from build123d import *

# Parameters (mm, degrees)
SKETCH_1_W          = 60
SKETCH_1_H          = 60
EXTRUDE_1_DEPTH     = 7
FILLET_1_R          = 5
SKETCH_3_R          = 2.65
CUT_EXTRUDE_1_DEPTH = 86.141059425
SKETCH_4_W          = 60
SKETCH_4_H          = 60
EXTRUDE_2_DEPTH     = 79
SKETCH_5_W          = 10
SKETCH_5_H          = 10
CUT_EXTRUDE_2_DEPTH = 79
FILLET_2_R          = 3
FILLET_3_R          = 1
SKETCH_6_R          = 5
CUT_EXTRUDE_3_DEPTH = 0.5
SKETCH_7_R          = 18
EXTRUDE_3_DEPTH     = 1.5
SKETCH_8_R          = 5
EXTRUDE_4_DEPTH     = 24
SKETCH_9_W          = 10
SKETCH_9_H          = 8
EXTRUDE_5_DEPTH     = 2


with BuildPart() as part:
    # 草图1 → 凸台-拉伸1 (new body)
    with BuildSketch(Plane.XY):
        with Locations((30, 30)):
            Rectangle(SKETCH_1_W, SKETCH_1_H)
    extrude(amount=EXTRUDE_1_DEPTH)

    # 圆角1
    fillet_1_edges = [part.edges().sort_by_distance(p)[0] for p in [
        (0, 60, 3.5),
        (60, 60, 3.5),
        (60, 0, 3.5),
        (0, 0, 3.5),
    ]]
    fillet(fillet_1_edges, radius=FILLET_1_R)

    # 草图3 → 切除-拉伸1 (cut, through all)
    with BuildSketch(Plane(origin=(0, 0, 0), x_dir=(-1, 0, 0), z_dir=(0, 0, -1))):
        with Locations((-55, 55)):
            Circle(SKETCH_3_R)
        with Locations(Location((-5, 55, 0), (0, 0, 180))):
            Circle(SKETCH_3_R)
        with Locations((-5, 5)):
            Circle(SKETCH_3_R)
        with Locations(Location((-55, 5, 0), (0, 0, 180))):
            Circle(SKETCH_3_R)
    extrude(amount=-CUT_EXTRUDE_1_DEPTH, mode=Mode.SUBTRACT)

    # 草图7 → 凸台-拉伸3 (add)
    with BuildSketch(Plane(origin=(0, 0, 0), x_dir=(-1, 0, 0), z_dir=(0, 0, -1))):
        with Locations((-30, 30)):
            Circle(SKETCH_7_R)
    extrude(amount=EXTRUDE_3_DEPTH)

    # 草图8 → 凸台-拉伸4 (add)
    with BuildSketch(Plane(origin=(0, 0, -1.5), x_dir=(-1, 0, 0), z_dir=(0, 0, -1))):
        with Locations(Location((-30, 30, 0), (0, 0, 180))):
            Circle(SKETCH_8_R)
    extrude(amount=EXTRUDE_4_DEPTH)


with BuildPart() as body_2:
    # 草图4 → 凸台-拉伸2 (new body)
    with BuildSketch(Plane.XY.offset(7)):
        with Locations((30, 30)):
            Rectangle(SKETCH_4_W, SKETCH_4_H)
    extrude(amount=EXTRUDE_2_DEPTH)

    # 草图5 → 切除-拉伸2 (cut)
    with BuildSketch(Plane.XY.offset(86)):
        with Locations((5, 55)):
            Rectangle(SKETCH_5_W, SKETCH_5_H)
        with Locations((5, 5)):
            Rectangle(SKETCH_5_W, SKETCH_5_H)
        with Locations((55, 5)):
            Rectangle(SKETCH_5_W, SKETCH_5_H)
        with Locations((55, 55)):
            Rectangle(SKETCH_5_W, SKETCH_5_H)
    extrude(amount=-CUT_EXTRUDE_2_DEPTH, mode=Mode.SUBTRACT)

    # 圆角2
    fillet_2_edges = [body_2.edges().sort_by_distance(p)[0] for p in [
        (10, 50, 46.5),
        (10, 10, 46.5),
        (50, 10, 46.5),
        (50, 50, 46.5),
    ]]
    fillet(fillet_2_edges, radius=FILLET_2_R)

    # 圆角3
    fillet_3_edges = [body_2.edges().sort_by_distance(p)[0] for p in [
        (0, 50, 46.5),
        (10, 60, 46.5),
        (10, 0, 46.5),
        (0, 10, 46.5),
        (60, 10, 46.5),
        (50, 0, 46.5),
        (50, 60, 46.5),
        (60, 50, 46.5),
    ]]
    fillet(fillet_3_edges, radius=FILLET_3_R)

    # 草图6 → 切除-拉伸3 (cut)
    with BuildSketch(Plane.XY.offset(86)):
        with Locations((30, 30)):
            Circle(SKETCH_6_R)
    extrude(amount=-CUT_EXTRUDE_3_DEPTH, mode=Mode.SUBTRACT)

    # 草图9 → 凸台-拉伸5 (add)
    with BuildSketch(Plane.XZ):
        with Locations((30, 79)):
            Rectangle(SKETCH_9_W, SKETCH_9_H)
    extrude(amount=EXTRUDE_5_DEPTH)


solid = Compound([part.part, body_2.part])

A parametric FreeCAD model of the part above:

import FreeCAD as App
import Part
import Sketcher

V = App.Vector
Q = App.Units.Quantity


def edges_at(feature, points):
    """Names of the edges that pass closest to the given points."""
    edges = feature.Shape.Edges
    near = lambda p: min(range(len(edges)), key=lambda i: edges[i].distToShape(Part.Vertex(*p))[0])
    return sorted({f"Edge{near(p) + 1}" for p in points})

doc = App.newDocument("Part")
body = doc.addObject("PartDesign::Body", "Body")

# Sketch on XY plane
sketch1 = body.newObject("Sketcher::SketchObject", "Sketch")
sketch1.AttachmentSupport = (doc.getObject("XY_Plane"), [""])
sketch1.MapMode = "FlatFace"
sketch1.addGeometry([
    Part.LineSegment(V(0, 60, 0), V(0, 0, 0)),
    Part.LineSegment(V(0, 0, 0), V(60, 0, 0)),
    Part.LineSegment(V(60, 0, 0), V(60, 60, 0)),
    Part.LineSegment(V(60, 60, 0), V(0, 60, 0)),
], False)
sketch1.addConstraint([
    Sketcher.Constraint("Coincident", 0, 2, 1, 1),
    Sketcher.Constraint("Coincident", 1, 2, 2, 1),
    Sketcher.Constraint("Coincident", 2, 2, 3, 1),
    Sketcher.Constraint("Coincident", 3, 2, 0, 1),
    Sketcher.Constraint("Vertical", 0),
    Sketcher.Constraint("Horizontal", 1),
    Sketcher.Constraint("Vertical", 2),
    Sketcher.Constraint("Horizontal", 3),
    Sketcher.Constraint("Coincident", 0, 2, -1, 1),
    Sketcher.Constraint("Equal", 3, 0),
    Sketcher.Constraint("DistanceX", 1, 1, 1, 2, Q("60 mm")),
])
pad1 = body.newObject("PartDesign::Pad", "Pad")
pad1.Profile = sketch1
pad1.Length = 7
doc.recompute()

fillet = body.newObject("PartDesign::Fillet", "Fillet")
fillet.Base = (pad1, edges_at(pad1, [
    (0, 60, 3.5),
    (60, 60, 3.5),
    (60, 0, 3.5),
    (0, 0, 3.5),
]))
fillet.Radius = 5

# Sketch on XY plane
sketch2 = body.newObject("Sketcher::SketchObject", "Sketch001")
sketch2.AttachmentSupport = (doc.getObject("XY_Plane"), [""])
sketch2.MapMode = "FlatFace"
sketch2.addGeometry([
    Part.Circle(V(55, 55, 0), V(0, 0, 1), 2.65),
    Part.Circle(V(5, 55, 0), V(0, 0, 1), 2.65),
    Part.Circle(V(5, 5, 0), V(0, 0, 1), 2.65),
    Part.Circle(V(55, 5, 0), V(0, 0, 1), 2.65),
], False)
sketch2.addConstraint([
    Sketcher.Constraint("Equal", 0, 1),
    Sketcher.Constraint("Equal", 1, 2),
    Sketcher.Constraint("Equal", 2, 3),
    Sketcher.Constraint("Horizontal", 0, 3, 1, 3),
    Sketcher.Constraint("Horizontal", 2, 3, 3, 3),
    Sketcher.Constraint("Vertical", 1, 3, 2, 3),
    Sketcher.Constraint("Vertical", 0, 3, 3, 3),
    Sketcher.Constraint("Diameter", 0, Q("5.3 mm")),
    Sketcher.Constraint("DistanceX", -1, 1, 0, 3, Q("55 mm")),
    Sketcher.Constraint("DistanceY", -1, 1, 0, 3, Q("55 mm")),
    Sketcher.Constraint("DistanceX", -1, 1, 1, 3, Q("5 mm")),
    Sketcher.Constraint("DistanceY", -1, 1, 2, 3, Q("5 mm")),
])
pocket1 = body.newObject("PartDesign::Pocket", "Pocket")
pocket1.Profile = sketch2
pocket1.Type = "ThroughAll"
pocket1.Reversed = True

# Sketch on XY plane
sketch3 = body.newObject("Sketcher::SketchObject", "Sketch002")
sketch3.AttachmentSupport = (doc.getObject("XY_Plane"), [""])
sketch3.MapMode = "FlatFace"
sketch3.addGeometry(Part.Circle(V(30, 30, 0), V(0, 0, 1), 18), False)
sketch3.addConstraint([
    Sketcher.Constraint("Diameter", 0, Q("36 mm")),
    Sketcher.Constraint("DistanceX", -1, 1, 0, 3, Q("30 mm")),
    Sketcher.Constraint("DistanceY", -1, 1, 0, 3, Q("30 mm")),
])
pad2 = body.newObject("PartDesign::Pad", "Pad001")
pad2.Profile = sketch3
pad2.Length = 1.5
pad2.Reversed = True

# Sketch on XY plane
sketch4 = body.newObject("Sketcher::SketchObject", "Sketch003")
sketch4.AttachmentSupport = (doc.getObject("XY_Plane"), [""])
sketch4.MapMode = "FlatFace"
sketch4.AttachmentOffset = App.Placement(V(0, 0, -1.5), App.Rotation())
sketch4.addGeometry(Part.Circle(V(30, 30, 0), V(0, 0, 1), 5), False)
sketch4.addConstraint([
    Sketcher.Constraint("Diameter", 0, Q("10 mm")),
    Sketcher.Constraint("DistanceX", -1, 1, 0, 3, Q("30 mm")),
    Sketcher.Constraint("DistanceY", -1, 1, 0, 3, Q("30 mm")),
])
pad3 = body.newObject("PartDesign::Pad", "Pad002")
pad3.Profile = sketch4
pad3.Length = 24
pad3.Reversed = True
body2 = doc.addObject("PartDesign::Body", "Body001")

# Sketch on XY plane
sketch5 = body2.newObject("Sketcher::SketchObject", "Sketch004")
sketch5.AttachmentSupport = (doc.getObject("XY_Plane001"), [""])
sketch5.MapMode = "FlatFace"
sketch5.AttachmentOffset = App.Placement(V(0, 0, 7), App.Rotation())
sketch5.addGeometry([
    Part.LineSegment(V(0, 60, 0), V(0, 0, 0)),
    Part.LineSegment(V(0, 0, 0), V(60, 0, 0)),
    Part.LineSegment(V(60, 0, 0), V(60, 60, 0)),
    Part.LineSegment(V(60, 60, 0), V(0, 60, 0)),
], False)
sketch5.addConstraint([
    Sketcher.Constraint("Coincident", 0, 2, 1, 1),
    Sketcher.Constraint("Coincident", 1, 2, 2, 1),
    Sketcher.Constraint("Coincident", 2, 2, 3, 1),
    Sketcher.Constraint("Coincident", 3, 2, 0, 1),
    Sketcher.Constraint("Vertical", 0),
    Sketcher.Constraint("Horizontal", 1),
    Sketcher.Constraint("Vertical", 2),
    Sketcher.Constraint("Horizontal", 3),
    Sketcher.Constraint("Coincident", 0, 2, -1, 1),
    Sketcher.Constraint("Equal", 3, 0),
    Sketcher.Constraint("DistanceX", 1, 1, 1, 2, Q("60 mm")),
])
pad4 = body2.newObject("PartDesign::Pad", "Pad003")
pad4.Profile = sketch5
pad4.Length = 79

# Sketch on XY plane
sketch6 = body2.newObject("Sketcher::SketchObject", "Sketch005")
sketch6.AttachmentSupport = (doc.getObject("XY_Plane001"), [""])
sketch6.MapMode = "FlatFace"
sketch6.AttachmentOffset = App.Placement(V(0, 0, 86), App.Rotation())
sketch6.addGeometry([
    Part.LineSegment(V(0, 60, 0), V(0, 50, 0)),  # 0
    Part.LineSegment(V(0, 50, 0), V(10, 50, 0)),  # 1
    Part.LineSegment(V(10, 50, 0), V(10, 60, 0)),  # 2
    Part.LineSegment(V(10, 60, 0), V(0, 60, 0)),  # 3
    Part.LineSegment(V(0, 10, 0), V(0, 0, 0)),  # 4
    Part.LineSegment(V(0, 0, 0), V(10, 0, 0)),  # 5
    Part.LineSegment(V(10, 0, 0), V(10, 10, 0)),  # 6
    Part.LineSegment(V(10, 10, 0), V(0, 10, 0)),  # 7
    Part.LineSegment(V(50, 10, 0), V(50, 0, 0)),  # 8
    Part.LineSegment(V(50, 0, 0), V(60, 0, 0)),  # 9
    Part.LineSegment(V(60, 0, 0), V(60, 10, 0)),  # 10
    Part.LineSegment(V(60, 10, 0), V(50, 10, 0)),  # 11
    Part.LineSegment(V(50, 60, 0), V(50, 50, 0)),  # 12
    Part.LineSegment(V(50, 50, 0), V(60, 50, 0)),  # 13
    Part.LineSegment(V(60, 50, 0), V(60, 60, 0)),  # 14
    Part.LineSegment(V(60, 60, 0), V(50, 60, 0)),  # 15
], False)
sketch6.addConstraint([
    Sketcher.Constraint("Coincident", 0, 2, 1, 1),
    Sketcher.Constraint("Coincident", 1, 2, 2, 1),
    Sketcher.Constraint("Coincident", 2, 2, 3, 1),
    Sketcher.Constraint("Coincident", 3, 2, 0, 1),
    Sketcher.Constraint("Coincident", 4, 2, 5, 1),
    Sketcher.Constraint("Coincident", 5, 2, 6, 1),
    Sketcher.Constraint("Coincident", 6, 2, 7, 1),
    Sketcher.Constraint("Coincident", 7, 2, 4, 1),
    Sketcher.Constraint("Coincident", 8, 2, 9, 1),
    Sketcher.Constraint("Coincident", 9, 2, 10, 1),
    Sketcher.Constraint("Coincident", 10, 2, 11, 1),
    Sketcher.Constraint("Coincident", 11, 2, 8, 1),
    Sketcher.Constraint("Coincident", 12, 2, 13, 1),
    Sketcher.Constraint("Coincident", 13, 2, 14, 1),
    Sketcher.Constraint("Coincident", 14, 2, 15, 1),
    Sketcher.Constraint("Coincident", 15, 2, 12, 1),
    Sketcher.Constraint("Vertical", 0),
    Sketcher.Constraint("Horizontal", 1),
    Sketcher.Constraint("Vertical", 2),
    Sketcher.Constraint("Horizontal", 3),
    Sketcher.Constraint("Vertical", 4),
    Sketcher.Constraint("Horizontal", 5),
    Sketcher.Constraint("Vertical", 6),
    Sketcher.Constraint("Horizontal", 7),
    Sketcher.Constraint("Vertical", 8),
    Sketcher.Constraint("Horizontal", 9),
    Sketcher.Constraint("Vertical", 10),
    Sketcher.Constraint("Horizontal", 11),
    Sketcher.Constraint("Vertical", 12),
    Sketcher.Constraint("Horizontal", 13),
    Sketcher.Constraint("Vertical", 14),
    Sketcher.Constraint("Horizontal", 15),
    Sketcher.Constraint("Coincident", 4, 2, -1, 1),
    Sketcher.Constraint("PointOnObject", 0, 2, -2),
    Sketcher.Constraint("PointOnObject", 8, 2, -1),
    Sketcher.Constraint("Horizontal", 7, 2, 10, 2),
    Sketcher.Constraint("Horizontal", 1, 2, 12, 2),
    Sketcher.Constraint("Horizontal", 3, 2, 14, 2),
    Sketcher.Constraint("Vertical", 2, 2, 5, 2),
    Sketcher.Constraint("Vertical", 11, 2, 12, 2),
    Sketcher.Constraint("Vertical", 10, 2, 13, 2),
    Sketcher.Constraint("Equal", 7, 9),
    Sketcher.Constraint("Equal", 15, 0),
    Sketcher.Constraint("Equal", 2, 4),
    Sketcher.Constraint("DistanceX", 1, 1, 1, 2, Q("10 mm")),
    Sketcher.Constraint("DistanceY", -1, 1, 0, 2, Q("50 mm")),
    Sketcher.Constraint("DistanceX", -1, 1, 8, 2, Q("50 mm")),
])
pocket2 = body2.newObject("PartDesign::Pocket", "Pocket001")
pocket2.Profile = sketch6
pocket2.Length = 79
doc.recompute()

fillet2 = body2.newObject("PartDesign::Fillet", "Fillet001")
fillet2.Base = (pocket2, edges_at(pocket2, [
    (10, 50, 46.5),
    (10, 10, 46.5),
    (50, 10, 46.5),
    (50, 50, 46.5),
]))
fillet2.Radius = 3
doc.recompute()

fillet3 = body2.newObject("PartDesign::Fillet", "Fillet002")
fillet3.Base = (fillet2, edges_at(fillet2, [
    (0, 50, 46.5),
    (10, 60, 46.5),
    (10, 0, 46.5),
    (0, 10, 46.5),
    (60, 10, 46.5),
    (50, 0, 46.5),
    (50, 60, 46.5),
    (60, 50, 46.5),
]))
fillet3.Radius = 1

# Sketch on XY plane
sketch7 = body2.newObject("Sketcher::SketchObject", "Sketch006")
sketch7.AttachmentSupport = (doc.getObject("XY_Plane001"), [""])
sketch7.MapMode = "FlatFace"
sketch7.AttachmentOffset = App.Placement(V(0, 0, 86), App.Rotation())
sketch7.addGeometry(Part.Circle(V(30, 30, 0), V(0, 0, 1), 5), False)
sketch7.addConstraint([
    Sketcher.Constraint("Diameter", 0, Q("10 mm")),
    Sketcher.Constraint("DistanceX", -1, 1, 0, 3, Q("30 mm")),
    Sketcher.Constraint("DistanceY", -1, 1, 0, 3, Q("30 mm")),
])
pocket3 = body2.newObject("PartDesign::Pocket", "Pocket002")
pocket3.Profile = sketch7
pocket3.Length = 0.5

# Sketch on XZ plane
sketch8 = body2.newObject("Sketcher::SketchObject", "Sketch007")
sketch8.AttachmentSupport = (doc.getObject("XZ_Plane001"), [""])
sketch8.MapMode = "FlatFace"
sketch8.addGeometry([
    Part.LineSegment(V(25, 83, 0), V(25, 75, 0)),
    Part.LineSegment(V(25, 75, 0), V(35, 75, 0)),
    Part.LineSegment(V(35, 75, 0), V(35, 83, 0)),
    Part.LineSegment(V(35, 83, 0), V(25, 83, 0)),
], False)
sketch8.addConstraint([
    Sketcher.Constraint("Coincident", 0, 2, 1, 1),
    Sketcher.Constraint("Coincident", 1, 2, 2, 1),
    Sketcher.Constraint("Coincident", 2, 2, 3, 1),
    Sketcher.Constraint("Coincident", 3, 2, 0, 1),
    Sketcher.Constraint("Vertical", 0),
    Sketcher.Constraint("Horizontal", 1),
    Sketcher.Constraint("Vertical", 2),
    Sketcher.Constraint("Horizontal", 3),
    Sketcher.Constraint("DistanceX", 1, 1, 1, 2, Q("10 mm")),
    Sketcher.Constraint("DistanceY", 0, 2, 0, 1, Q("8 mm")),
    Sketcher.Constraint("DistanceX", -1, 1, 0, 2, Q("25 mm")),
    Sketcher.Constraint("DistanceY", -1, 1, 0, 2, Q("75 mm")),
])
pad5 = body2.newObject("PartDesign::Pad", "Pad004")
pad5.Profile = sketch8
pad5.Length = 2

doc.recompute()
